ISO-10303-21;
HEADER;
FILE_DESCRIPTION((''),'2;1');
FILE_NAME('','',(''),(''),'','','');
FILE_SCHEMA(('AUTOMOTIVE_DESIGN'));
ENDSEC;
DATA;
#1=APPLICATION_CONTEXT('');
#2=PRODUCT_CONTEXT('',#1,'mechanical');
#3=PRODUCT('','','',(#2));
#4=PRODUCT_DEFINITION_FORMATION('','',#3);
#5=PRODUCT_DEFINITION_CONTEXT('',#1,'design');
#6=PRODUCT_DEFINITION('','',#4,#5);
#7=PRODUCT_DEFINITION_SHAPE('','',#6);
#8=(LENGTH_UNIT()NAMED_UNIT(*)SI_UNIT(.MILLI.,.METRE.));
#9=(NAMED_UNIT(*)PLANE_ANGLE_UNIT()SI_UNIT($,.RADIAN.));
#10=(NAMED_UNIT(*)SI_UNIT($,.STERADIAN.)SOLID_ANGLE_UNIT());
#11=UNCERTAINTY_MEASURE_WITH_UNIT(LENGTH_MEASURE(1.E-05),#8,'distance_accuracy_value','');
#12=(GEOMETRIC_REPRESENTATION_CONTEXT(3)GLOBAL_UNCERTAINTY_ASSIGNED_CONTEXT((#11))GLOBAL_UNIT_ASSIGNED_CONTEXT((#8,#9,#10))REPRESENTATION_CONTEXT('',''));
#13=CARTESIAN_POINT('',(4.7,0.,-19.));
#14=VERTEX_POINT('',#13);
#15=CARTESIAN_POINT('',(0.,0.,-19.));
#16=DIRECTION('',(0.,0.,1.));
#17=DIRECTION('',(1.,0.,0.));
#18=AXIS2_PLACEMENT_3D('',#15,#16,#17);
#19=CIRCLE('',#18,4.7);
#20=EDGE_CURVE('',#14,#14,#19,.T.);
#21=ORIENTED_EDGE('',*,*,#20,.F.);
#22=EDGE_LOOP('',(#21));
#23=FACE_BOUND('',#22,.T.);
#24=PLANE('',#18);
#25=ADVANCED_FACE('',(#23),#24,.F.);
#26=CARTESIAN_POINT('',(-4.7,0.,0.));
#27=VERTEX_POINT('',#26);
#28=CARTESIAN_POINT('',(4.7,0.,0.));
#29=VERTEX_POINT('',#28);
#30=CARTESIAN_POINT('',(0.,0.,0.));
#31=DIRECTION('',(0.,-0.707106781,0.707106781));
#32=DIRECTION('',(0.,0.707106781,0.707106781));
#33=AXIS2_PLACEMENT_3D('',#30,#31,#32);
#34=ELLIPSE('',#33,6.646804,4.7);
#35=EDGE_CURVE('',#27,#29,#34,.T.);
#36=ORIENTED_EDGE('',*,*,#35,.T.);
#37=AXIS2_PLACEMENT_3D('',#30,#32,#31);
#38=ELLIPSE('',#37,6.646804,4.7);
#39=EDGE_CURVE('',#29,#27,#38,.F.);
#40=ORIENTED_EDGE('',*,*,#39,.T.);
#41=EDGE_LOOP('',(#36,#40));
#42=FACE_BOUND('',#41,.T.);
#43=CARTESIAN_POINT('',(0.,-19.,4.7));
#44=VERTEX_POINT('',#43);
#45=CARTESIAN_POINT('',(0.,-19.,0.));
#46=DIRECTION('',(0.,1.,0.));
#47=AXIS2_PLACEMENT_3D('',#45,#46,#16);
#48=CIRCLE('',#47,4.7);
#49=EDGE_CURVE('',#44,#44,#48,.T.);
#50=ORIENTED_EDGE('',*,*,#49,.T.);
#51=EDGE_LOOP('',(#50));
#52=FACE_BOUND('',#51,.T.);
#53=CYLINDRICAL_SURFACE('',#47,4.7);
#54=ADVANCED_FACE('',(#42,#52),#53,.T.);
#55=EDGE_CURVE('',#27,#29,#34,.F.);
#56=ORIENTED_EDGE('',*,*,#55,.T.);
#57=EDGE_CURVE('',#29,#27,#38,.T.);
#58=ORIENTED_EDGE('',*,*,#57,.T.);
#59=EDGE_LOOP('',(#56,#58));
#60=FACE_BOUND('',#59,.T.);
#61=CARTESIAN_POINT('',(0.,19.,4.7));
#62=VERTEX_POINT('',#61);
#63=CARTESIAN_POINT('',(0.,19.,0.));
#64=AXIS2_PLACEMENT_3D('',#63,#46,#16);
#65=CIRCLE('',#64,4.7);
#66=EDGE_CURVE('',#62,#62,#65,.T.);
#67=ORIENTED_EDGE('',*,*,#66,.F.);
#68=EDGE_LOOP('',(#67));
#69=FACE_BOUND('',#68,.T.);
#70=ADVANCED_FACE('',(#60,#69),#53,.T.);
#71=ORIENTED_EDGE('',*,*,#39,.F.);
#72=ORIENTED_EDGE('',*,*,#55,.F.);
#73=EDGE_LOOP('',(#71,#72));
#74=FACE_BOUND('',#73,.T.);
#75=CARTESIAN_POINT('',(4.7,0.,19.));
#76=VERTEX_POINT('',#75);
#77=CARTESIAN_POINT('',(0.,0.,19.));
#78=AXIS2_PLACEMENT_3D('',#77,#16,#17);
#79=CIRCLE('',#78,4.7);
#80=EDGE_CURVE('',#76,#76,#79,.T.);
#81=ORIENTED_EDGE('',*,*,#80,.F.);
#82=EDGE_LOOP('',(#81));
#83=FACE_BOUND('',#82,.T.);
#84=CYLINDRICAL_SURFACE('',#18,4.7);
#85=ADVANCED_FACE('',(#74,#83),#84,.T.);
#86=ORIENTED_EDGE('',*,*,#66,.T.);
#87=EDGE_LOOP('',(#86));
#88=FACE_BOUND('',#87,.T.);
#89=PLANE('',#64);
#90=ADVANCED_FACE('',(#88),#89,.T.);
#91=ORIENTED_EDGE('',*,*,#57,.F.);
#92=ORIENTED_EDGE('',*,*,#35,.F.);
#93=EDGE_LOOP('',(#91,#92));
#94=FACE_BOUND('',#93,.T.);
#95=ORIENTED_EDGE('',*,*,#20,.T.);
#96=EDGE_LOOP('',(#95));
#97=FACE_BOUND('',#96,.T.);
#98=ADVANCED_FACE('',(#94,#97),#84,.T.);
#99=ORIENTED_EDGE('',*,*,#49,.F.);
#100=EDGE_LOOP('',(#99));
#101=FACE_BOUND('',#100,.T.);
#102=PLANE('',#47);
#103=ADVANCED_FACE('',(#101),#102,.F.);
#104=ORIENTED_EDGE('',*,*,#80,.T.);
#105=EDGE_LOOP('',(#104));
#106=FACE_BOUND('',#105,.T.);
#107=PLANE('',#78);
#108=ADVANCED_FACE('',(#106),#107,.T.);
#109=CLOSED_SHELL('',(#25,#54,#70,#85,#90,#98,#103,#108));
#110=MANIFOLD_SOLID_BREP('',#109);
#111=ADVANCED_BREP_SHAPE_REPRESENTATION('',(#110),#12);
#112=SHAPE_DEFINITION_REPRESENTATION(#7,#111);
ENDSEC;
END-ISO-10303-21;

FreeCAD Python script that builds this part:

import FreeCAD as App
import Part
import Sketcher

V = App.Vector
Q = App.Units.Quantity

doc = App.newDocument("Part")
body = doc.addObject("PartDesign::Body", "Body")

sketch1 = body.newObject("Sketcher::SketchObject", "Sketch")
sketch1.AttachmentSupport = (doc.getObject("XY_Plane"), [""])
sketch1.MapMode = "FlatFace"
sketch1.addGeometry(Part.Circle(V(0, 0, 0), V(0, 0, 1), 4.7), False)
sketch1.addConstraint([
    Sketcher.Constraint("Coincident", 0, 3, -1, 1),
    Sketcher.Constraint("Diameter", 0, Q("9.4 mm")),
])
pad1 = body.newObject("PartDesign::Pad", "Pad")
pad1.Profile = sketch1
pad1.Type = "TwoLengths"
pad1.Length = 19
pad1.Length2 = 19

sketch2 = body.newObject("Sketcher::SketchObject", "Sketch001")
sketch2.AttachmentSupport = (doc.getObject("XZ_Plane"), [""])
sketch2.MapMode = "FlatFace"
sketch2.addGeometry(Part.Circle(V(0, 0, 0), V(0, 0, 1), 4.7), False)
sketch2.addConstraint([
    Sketcher.Constraint("Coincident", 0, 3, -1, 1),
    Sketcher.Constraint("Diameter", 0, Q("9.4 mm")),
])
pad2 = body.newObject("PartDesign::Pad", "Pad001")
pad2.Profile = sketch2
pad2.Type = "TwoLengths"
pad2.Length = 19
pad2.Length2 = 19
pad2.Reversed = True

doc.recompute()
